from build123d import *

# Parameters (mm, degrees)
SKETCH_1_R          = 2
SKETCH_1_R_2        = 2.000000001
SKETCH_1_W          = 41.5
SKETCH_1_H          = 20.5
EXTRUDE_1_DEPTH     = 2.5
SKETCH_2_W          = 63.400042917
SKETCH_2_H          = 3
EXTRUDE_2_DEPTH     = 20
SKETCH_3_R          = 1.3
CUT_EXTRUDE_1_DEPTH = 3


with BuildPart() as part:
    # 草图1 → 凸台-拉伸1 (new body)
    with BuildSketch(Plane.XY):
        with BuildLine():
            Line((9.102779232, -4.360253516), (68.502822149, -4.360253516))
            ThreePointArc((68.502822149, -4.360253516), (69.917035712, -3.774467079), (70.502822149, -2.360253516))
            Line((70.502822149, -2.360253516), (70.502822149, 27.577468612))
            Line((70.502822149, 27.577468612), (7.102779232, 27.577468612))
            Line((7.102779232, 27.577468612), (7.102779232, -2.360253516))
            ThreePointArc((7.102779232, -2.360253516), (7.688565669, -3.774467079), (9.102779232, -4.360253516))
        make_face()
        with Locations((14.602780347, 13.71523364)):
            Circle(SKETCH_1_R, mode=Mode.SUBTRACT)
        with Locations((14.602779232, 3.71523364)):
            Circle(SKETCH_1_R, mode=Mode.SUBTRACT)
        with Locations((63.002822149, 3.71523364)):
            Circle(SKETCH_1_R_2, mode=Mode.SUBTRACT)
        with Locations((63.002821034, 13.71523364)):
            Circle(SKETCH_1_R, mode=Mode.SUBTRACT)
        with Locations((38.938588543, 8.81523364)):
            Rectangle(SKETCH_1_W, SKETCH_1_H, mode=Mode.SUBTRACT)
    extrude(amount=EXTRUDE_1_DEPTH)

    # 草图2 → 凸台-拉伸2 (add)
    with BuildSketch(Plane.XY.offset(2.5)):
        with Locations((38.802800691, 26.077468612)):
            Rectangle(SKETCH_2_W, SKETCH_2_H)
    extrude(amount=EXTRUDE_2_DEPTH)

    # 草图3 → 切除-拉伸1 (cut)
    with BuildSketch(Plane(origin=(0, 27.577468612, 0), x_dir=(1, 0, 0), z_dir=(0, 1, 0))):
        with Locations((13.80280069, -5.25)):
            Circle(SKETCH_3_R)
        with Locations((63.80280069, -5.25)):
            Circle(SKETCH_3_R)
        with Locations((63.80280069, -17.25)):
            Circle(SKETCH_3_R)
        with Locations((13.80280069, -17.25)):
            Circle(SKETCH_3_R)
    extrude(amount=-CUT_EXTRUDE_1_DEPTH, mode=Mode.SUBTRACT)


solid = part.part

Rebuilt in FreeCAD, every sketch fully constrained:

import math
import FreeCAD as App
import Part
import Sketcher

V = App.Vector

doc = App.newDocument("Part")
body = doc.addObject("PartDesign::Body", "Body")

sketch1 = doc.addObject("Sketcher::SketchObject", "Sketch")
body.addObject(sketch1)
sketch1.AttachmentSupport = (doc.XY_Plane, [""])
sketch1.MapMode = "FlatFace"
sketch1.addGeometry(Part.LineSegment(V(9.102779, -4.360254, 0), V(68.502822, -4.360254, 0)), False)
sketch1.addGeometry(Part.ArcOfCircle(Part.Circle(V(68.502822, -2.360254, 0), V(0, 0, 1), 2), math.radians(-90), math.radians(0)), False)
sketch1.addGeometry(Part.LineSegment(V(70.502822, -2.360254, 0), V(70.502822, 27.577469, 0)), False)
sketch1.addGeometry(Part.LineSegment(V(70.502822, 27.577469, 0), V(7.102779, 27.577469, 0)), False)
sketch1.addGeometry(Part.LineSegment(V(7.102779, 27.577469, 0), V(7.102779, -2.360254, 0)), False)
sketch1.addGeometry(Part.ArcOfCircle(Part.Circle(V(9.102779, -2.360254, 0), V(0, 0, 1), 2), math.radians(180), math.radians(270)), False)
sketch1.addGeometry(Part.Circle(V(14.602779, 3.715234, 0), V(0, 0, 1), 2), False)
sketch1.addGeometry(Part.Circle(V(63.002822, 3.715234, 0), V(0, 0, 1), 2), False)
sketch1.addGeometry(Part.Circle(V(14.60278, 13.715234, 0), V(0, 0, 1), 2), False)
sketch1.addGeometry(Part.LineSegment(V(59.688589, -1.434766, 0), V(18.188589, -1.434766, 0)), False)
sketch1.addGeometry(Part.LineSegment(V(18.188589, -1.434766, 0), V(18.188589, 19.065234, 0)), False)
sketch1.addGeometry(Part.LineSegment(V(18.188589, 19.065234, 0), V(59.688589, 19.065234, 0)), False)
sketch1.addGeometry(Part.LineSegment(V(59.688589, 19.065234, 0), V(59.688589, -1.434766, 0)), False)
sketch1.addGeometry(Part.Circle(V(63.002821, 13.715234, 0), V(0, 0, 1), 2), False)
sketch1.addConstraint(Sketcher.Constraint("Tangent", 0, 2, 1, 1))
sketch1.addConstraint(Sketcher.Constraint("Tangent", 1, 2, 2, 1))
sketch1.addConstraint(Sketcher.Constraint("Coincident", 2, 2, 3, 1))
sketch1.addConstraint(Sketcher.Constraint("Coincident", 3, 2, 4, 1))
sketch1.addConstraint(Sketcher.Constraint("Tangent", 4, 2, 5, 1))
sketch1.addConstraint(Sketcher.Constraint("Tangent", 5, 2, 0, 1))
sketch1.addConstraint(Sketcher.Constraint("Coincident", 9, 2, 10, 1))
sketch1.addConstraint(Sketcher.Constraint("Coincident", 10, 2, 11, 1))
sketch1.addConstraint(Sketcher.Constraint("Coincident", 11, 2, 12, 1))
sketch1.addConstraint(Sketcher.Constraint("Coincident", 12, 2, 9, 1))
sketch1.addConstraint(Sketcher.Constraint("Horizontal", 0))
sketch1.addConstraint(Sketcher.Constraint("Vertical", 2))
sketch1.addConstraint(Sketcher.Constraint("Horizontal", 3))
sketch1.addConstraint(Sketcher.Constraint("Vertical", 4))
sketch1.addConstraint(Sketcher.Constraint("Horizontal", 9))
sketch1.addConstraint(Sketcher.Constraint("Vertical", 10))
sketch1.addConstraint(Sketcher.Constraint("Horizontal", 11))
sketch1.addConstraint(Sketcher.Constraint("Vertical", 12))
sketch1.addConstraint(Sketcher.Constraint("Equal", 1, 5))
sketch1.addConstraint(Sketcher.Constraint("Equal", 5, 6))
sketch1.addConstraint(Sketcher.Constraint("Equal", 6, 7))
sketch1.addConstraint(Sketcher.Constraint("Equal", 7, 8))
sketch1.addConstraint(Sketcher.Constraint("Equal", 8, 13))
sketch1.addConstraint(Sketcher.Constraint("Horizontal", 6, 3, 7, 3))
sketch1.addConstraint(Sketcher.Constraint("Horizontal", 8, 3, 13, 3))
sketch1.addConstraint(Sketcher.Constraint("Vertical", 6, 3, 8, 3))
sketch1.addConstraint(Sketcher.Constraint("Vertical", 7, 3, 13, 3))
sketch1.addConstraint(Sketcher.Constraint("Diameter", 6, 4.0))
sketch1.addConstraint(Sketcher.Constraint("DistanceX", 9, 2, 9, 1, 41.5))
sketch1.addConstraint(Sketcher.Constraint("DistanceY", 10, 1, 10, 2, 20.5))
sketch1.addConstraint(Sketcher.Constraint("DistanceY", 6, 3, 8, 3, 10.0))
sketch1.addConstraint(Sketcher.Constraint("DistanceX", 5, 3, 6, 3, 5.5))
sketch1.addConstraint(Sketcher.Constraint("DistanceX", 7, 3, 1, 3, 5.5))
sketch1.addConstraint(Sketcher.Constraint("DistanceY", 9, 2, 6, 3, 5.15))
sketch1.addConstraint(Sketcher.Constraint("DistanceX", 0, 1, 0, 2, 59.400043))
sketch1.addConstraint(Sketcher.Constraint("DistanceY", 2, 1, 2, 2, 29.937722))
sketch1.addConstraint(Sketcher.Constraint("DistanceX", -1, 1, 5, 3, 9.102779))
sketch1.addConstraint(Sketcher.Constraint("DistanceY", -1, 1, 2, 2, 27.577469))
sketch1.addConstraint(Sketcher.Constraint("DistanceX", -1, 1, 9, 2, 18.188589))
sketch1.addConstraint(Sketcher.Constraint("DistanceY", -1, 1, 6, 3, 3.715234))
pad1 = doc.addObject("PartDesign::Pad", "Pad")
body.addObject(pad1)
pad1.Profile = sketch1
pad1.Length = 2.5

sketch2 = doc.addObject("Sketcher::SketchObject", "Sketch001")
body.addObject(sketch2)
sketch2.AttachmentSupport = (doc.XY_Plane, [""])
sketch2.MapMode = "FlatFace"
sketch2.AttachmentOffset = App.Placement(V(0, 0, 2.5), App.Rotation())
sketch2.addGeometry(Part.LineSegment(V(7.102779, 27.577469, 0), V(7.102779, 24.577469, 0)), False)
sketch2.addGeometry(Part.LineSegment(V(7.102779, 24.577469, 0), V(70.502822, 24.577469, 0)), False)
sketch2.addGeometry(Part.LineSegment(V(70.502822, 24.577469, 0), V(70.502822, 27.577469, 0)), False)
sketch2.addGeometry(Part.LineSegment(V(70.502822, 27.577469, 0), V(7.102779, 27.577469, 0)), False)
sketch2.addConstraint(Sketcher.Constraint("Coincident", 0, 2, 1, 1))
sketch2.addConstraint(Sketcher.Constraint("Coincident", 1, 2, 2, 1))
sketch2.addConstraint(Sketcher.Constraint("Coincident", 2, 2, 3, 1))
sketch2.addConstraint(Sketcher.Constraint("Coincident", 3, 2, 0, 1))
sketch2.addConstraint(Sketcher.Constraint("Vertical", 0))
sketch2.addConstraint(Sketcher.Constraint("Horizontal", 1))
sketch2.addConstraint(Sketcher.Constraint("Vertical", 2))
sketch2.addConstraint(Sketcher.Constraint("Horizontal", 3))
sketch2.addConstraint(Sketcher.Constraint("DistanceY", 0, 2, 0, 1, 3.0))
sketch2.addConstraint(Sketcher.Constraint("DistanceX", 1, 1, 1, 2, 63.400043))
sketch2.addConstraint(Sketcher.Constraint("DistanceX", -1, 1, 0, 2, 7.102779))
sketch2.addConstraint(Sketcher.Constraint("DistanceY", -1, 1, 0, 2, 24.577469))
pad2 = doc.addObject("PartDesign::Pad", "Pad001")
body.addObject(pad2)
pad2.Profile = sketch2
pad2.Length = 20

sketch3 = doc.addObject("Sketcher::SketchObject", "Sketch002")
body.addObject(sketch3)
sketch3.AttachmentSupport = (doc.XZ_Plane, [""])
sketch3.MapMode = "FlatFace"
sketch3.AttachmentOffset = App.Placement(V(0, 0, -27.577469), App.Rotation())
sketch3.addGeometry(Part.Circle(V(13.802801, 5.25, 0), V(0, 0, 1), 1.3), False)
sketch3.addGeometry(Part.Circle(V(63.802801, 5.25, 0), V(0, 0, 1), 1.3), False)
sketch3.addGeometry(Part.Circle(V(63.802801, 17.25, 0), V(0, 0, 1), 1.3), False)
sketch3.addGeometry(Part.Circle(V(13.802801, 17.25, 0), V(0, 0, 1), 1.3), False)
sketch3.addConstraint(Sketcher.Constraint("Equal", 0, 1))
sketch3.addConstraint(Sketcher.Constraint("Equal", 1, 2))
sketch3.addConstraint(Sketcher.Constraint("Equal", 2, 3))
sketch3.addConstraint(Sketcher.Constraint("Horizontal", 0, 3, 1, 3))
sketch3.addConstraint(Sketcher.Constraint("Horizontal", 2, 3, 3, 3))
sketch3.addConstraint(Sketcher.Constraint("Vertical", 1, 3, 2, 3))
sketch3.addConstraint(Sketcher.Constraint("Vertical", 0, 3, 3, 3))
sketch3.addConstraint(Sketcher.Constraint("Diameter", 0, 2.6))
sketch3.addConstraint(Sketcher.Constraint("DistanceX", 0, 3, 1, 3, 50.0))
sketch3.addConstraint(Sketcher.Constraint("DistanceY", 1, 3, 2, 3, 12.0))
sketch3.addConstraint(Sketcher.Constraint("DistanceY", -1, 1, 0, 3, 5.25))
sketch3.addConstraint(Sketcher.Constraint("DistanceX", -1, 1, 0, 3, 13.802801))
pocket1 = doc.addObject("PartDesign::Pocket", "Pocket")
body.addObject(pocket1)
pocket1.Profile = sketch3
pocket1.Length = 3
pocket1.Reversed = True

doc.recompute()
